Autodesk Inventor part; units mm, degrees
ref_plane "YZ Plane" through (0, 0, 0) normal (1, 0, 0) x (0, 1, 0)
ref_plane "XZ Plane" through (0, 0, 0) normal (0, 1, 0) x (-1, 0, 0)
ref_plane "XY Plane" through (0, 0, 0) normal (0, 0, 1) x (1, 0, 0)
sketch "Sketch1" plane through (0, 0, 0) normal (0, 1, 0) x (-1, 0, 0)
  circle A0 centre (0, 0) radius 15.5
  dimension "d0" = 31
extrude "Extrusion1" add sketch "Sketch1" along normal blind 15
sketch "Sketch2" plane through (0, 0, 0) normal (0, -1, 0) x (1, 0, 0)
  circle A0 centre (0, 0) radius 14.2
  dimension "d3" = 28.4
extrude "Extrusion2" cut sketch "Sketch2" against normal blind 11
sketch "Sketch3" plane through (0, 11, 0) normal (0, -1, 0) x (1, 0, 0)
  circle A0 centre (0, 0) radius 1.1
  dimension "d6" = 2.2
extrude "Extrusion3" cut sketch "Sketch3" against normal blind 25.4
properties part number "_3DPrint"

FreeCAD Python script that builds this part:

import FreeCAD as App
import Part
import Sketcher
from FreeCAD import Vector
Q = App.Units.Quantity

doc = App.newDocument("Part")
body = doc.addObject("PartDesign::Body", "Body")

sketch1 = body.newObject("Sketcher::SketchObject", "Sketch")
sketch1.AttachmentSupport = (doc.getObject("XZ_Plane"), [""])
sketch1.MapMode = "FlatFace"
sketch1.addGeometry(Part.Circle(Vector(0, 0, 0), Vector(0, 0, 1), 16), False)
sketch1.addConstraint([
    Sketcher.Constraint("Coincident", 0, 3, -1, 1),
    Sketcher.Constraint("Diameter", 0, Q("31 mm")),
])
pad1 = body.newObject("PartDesign::Pad", "Pad")
pad1.Profile = sketch1
pad1.Length = 15
pad1.Reversed = True

sketch2 = body.newObject("Sketcher::SketchObject", "Sketch001")
sketch2.AttachmentSupport = (doc.getObject("XZ_Plane"), [""])
sketch2.MapMode = "FlatFace"
sketch2.addGeometry(Part.Circle(Vector(0, 0, 0), Vector(0, 0, 1), 14), False)
sketch2.addConstraint([
    Sketcher.Constraint("Coincident", 0, 3, -1, 1),
    Sketcher.Constraint("Diameter", 0, Q("28.4 mm")),
])
pocket1 = body.newObject("PartDesign::Pocket", "Pocket")
pocket1.Profile = sketch2
pocket1.Length = 11

sketch3 = body.newObject("Sketcher::SketchObject", "Sketch002")
sketch3.AttachmentSupport = (doc.getObject("XZ_Plane"), [""])
sketch3.MapMode = "FlatFace"
sketch3.AttachmentOffset = App.Placement(Vector(0, 0, -11), App.Rotation())
sketch3.addGeometry(Part.Circle(Vector(0, 0, 0), Vector(0, 0, 1), 1.1), False)
sketch3.addConstraint([
    Sketcher.Constraint("Coincident", 0, 3, -1, 1),
    Sketcher.Constraint("Diameter", 0, Q("2.2 mm")),
])
pocket2 = body.newObject("PartDesign::Pocket", "Pocket001")
pocket2.Profile = sketch3
pocket2.Length = 25.4

doc.recompute()
